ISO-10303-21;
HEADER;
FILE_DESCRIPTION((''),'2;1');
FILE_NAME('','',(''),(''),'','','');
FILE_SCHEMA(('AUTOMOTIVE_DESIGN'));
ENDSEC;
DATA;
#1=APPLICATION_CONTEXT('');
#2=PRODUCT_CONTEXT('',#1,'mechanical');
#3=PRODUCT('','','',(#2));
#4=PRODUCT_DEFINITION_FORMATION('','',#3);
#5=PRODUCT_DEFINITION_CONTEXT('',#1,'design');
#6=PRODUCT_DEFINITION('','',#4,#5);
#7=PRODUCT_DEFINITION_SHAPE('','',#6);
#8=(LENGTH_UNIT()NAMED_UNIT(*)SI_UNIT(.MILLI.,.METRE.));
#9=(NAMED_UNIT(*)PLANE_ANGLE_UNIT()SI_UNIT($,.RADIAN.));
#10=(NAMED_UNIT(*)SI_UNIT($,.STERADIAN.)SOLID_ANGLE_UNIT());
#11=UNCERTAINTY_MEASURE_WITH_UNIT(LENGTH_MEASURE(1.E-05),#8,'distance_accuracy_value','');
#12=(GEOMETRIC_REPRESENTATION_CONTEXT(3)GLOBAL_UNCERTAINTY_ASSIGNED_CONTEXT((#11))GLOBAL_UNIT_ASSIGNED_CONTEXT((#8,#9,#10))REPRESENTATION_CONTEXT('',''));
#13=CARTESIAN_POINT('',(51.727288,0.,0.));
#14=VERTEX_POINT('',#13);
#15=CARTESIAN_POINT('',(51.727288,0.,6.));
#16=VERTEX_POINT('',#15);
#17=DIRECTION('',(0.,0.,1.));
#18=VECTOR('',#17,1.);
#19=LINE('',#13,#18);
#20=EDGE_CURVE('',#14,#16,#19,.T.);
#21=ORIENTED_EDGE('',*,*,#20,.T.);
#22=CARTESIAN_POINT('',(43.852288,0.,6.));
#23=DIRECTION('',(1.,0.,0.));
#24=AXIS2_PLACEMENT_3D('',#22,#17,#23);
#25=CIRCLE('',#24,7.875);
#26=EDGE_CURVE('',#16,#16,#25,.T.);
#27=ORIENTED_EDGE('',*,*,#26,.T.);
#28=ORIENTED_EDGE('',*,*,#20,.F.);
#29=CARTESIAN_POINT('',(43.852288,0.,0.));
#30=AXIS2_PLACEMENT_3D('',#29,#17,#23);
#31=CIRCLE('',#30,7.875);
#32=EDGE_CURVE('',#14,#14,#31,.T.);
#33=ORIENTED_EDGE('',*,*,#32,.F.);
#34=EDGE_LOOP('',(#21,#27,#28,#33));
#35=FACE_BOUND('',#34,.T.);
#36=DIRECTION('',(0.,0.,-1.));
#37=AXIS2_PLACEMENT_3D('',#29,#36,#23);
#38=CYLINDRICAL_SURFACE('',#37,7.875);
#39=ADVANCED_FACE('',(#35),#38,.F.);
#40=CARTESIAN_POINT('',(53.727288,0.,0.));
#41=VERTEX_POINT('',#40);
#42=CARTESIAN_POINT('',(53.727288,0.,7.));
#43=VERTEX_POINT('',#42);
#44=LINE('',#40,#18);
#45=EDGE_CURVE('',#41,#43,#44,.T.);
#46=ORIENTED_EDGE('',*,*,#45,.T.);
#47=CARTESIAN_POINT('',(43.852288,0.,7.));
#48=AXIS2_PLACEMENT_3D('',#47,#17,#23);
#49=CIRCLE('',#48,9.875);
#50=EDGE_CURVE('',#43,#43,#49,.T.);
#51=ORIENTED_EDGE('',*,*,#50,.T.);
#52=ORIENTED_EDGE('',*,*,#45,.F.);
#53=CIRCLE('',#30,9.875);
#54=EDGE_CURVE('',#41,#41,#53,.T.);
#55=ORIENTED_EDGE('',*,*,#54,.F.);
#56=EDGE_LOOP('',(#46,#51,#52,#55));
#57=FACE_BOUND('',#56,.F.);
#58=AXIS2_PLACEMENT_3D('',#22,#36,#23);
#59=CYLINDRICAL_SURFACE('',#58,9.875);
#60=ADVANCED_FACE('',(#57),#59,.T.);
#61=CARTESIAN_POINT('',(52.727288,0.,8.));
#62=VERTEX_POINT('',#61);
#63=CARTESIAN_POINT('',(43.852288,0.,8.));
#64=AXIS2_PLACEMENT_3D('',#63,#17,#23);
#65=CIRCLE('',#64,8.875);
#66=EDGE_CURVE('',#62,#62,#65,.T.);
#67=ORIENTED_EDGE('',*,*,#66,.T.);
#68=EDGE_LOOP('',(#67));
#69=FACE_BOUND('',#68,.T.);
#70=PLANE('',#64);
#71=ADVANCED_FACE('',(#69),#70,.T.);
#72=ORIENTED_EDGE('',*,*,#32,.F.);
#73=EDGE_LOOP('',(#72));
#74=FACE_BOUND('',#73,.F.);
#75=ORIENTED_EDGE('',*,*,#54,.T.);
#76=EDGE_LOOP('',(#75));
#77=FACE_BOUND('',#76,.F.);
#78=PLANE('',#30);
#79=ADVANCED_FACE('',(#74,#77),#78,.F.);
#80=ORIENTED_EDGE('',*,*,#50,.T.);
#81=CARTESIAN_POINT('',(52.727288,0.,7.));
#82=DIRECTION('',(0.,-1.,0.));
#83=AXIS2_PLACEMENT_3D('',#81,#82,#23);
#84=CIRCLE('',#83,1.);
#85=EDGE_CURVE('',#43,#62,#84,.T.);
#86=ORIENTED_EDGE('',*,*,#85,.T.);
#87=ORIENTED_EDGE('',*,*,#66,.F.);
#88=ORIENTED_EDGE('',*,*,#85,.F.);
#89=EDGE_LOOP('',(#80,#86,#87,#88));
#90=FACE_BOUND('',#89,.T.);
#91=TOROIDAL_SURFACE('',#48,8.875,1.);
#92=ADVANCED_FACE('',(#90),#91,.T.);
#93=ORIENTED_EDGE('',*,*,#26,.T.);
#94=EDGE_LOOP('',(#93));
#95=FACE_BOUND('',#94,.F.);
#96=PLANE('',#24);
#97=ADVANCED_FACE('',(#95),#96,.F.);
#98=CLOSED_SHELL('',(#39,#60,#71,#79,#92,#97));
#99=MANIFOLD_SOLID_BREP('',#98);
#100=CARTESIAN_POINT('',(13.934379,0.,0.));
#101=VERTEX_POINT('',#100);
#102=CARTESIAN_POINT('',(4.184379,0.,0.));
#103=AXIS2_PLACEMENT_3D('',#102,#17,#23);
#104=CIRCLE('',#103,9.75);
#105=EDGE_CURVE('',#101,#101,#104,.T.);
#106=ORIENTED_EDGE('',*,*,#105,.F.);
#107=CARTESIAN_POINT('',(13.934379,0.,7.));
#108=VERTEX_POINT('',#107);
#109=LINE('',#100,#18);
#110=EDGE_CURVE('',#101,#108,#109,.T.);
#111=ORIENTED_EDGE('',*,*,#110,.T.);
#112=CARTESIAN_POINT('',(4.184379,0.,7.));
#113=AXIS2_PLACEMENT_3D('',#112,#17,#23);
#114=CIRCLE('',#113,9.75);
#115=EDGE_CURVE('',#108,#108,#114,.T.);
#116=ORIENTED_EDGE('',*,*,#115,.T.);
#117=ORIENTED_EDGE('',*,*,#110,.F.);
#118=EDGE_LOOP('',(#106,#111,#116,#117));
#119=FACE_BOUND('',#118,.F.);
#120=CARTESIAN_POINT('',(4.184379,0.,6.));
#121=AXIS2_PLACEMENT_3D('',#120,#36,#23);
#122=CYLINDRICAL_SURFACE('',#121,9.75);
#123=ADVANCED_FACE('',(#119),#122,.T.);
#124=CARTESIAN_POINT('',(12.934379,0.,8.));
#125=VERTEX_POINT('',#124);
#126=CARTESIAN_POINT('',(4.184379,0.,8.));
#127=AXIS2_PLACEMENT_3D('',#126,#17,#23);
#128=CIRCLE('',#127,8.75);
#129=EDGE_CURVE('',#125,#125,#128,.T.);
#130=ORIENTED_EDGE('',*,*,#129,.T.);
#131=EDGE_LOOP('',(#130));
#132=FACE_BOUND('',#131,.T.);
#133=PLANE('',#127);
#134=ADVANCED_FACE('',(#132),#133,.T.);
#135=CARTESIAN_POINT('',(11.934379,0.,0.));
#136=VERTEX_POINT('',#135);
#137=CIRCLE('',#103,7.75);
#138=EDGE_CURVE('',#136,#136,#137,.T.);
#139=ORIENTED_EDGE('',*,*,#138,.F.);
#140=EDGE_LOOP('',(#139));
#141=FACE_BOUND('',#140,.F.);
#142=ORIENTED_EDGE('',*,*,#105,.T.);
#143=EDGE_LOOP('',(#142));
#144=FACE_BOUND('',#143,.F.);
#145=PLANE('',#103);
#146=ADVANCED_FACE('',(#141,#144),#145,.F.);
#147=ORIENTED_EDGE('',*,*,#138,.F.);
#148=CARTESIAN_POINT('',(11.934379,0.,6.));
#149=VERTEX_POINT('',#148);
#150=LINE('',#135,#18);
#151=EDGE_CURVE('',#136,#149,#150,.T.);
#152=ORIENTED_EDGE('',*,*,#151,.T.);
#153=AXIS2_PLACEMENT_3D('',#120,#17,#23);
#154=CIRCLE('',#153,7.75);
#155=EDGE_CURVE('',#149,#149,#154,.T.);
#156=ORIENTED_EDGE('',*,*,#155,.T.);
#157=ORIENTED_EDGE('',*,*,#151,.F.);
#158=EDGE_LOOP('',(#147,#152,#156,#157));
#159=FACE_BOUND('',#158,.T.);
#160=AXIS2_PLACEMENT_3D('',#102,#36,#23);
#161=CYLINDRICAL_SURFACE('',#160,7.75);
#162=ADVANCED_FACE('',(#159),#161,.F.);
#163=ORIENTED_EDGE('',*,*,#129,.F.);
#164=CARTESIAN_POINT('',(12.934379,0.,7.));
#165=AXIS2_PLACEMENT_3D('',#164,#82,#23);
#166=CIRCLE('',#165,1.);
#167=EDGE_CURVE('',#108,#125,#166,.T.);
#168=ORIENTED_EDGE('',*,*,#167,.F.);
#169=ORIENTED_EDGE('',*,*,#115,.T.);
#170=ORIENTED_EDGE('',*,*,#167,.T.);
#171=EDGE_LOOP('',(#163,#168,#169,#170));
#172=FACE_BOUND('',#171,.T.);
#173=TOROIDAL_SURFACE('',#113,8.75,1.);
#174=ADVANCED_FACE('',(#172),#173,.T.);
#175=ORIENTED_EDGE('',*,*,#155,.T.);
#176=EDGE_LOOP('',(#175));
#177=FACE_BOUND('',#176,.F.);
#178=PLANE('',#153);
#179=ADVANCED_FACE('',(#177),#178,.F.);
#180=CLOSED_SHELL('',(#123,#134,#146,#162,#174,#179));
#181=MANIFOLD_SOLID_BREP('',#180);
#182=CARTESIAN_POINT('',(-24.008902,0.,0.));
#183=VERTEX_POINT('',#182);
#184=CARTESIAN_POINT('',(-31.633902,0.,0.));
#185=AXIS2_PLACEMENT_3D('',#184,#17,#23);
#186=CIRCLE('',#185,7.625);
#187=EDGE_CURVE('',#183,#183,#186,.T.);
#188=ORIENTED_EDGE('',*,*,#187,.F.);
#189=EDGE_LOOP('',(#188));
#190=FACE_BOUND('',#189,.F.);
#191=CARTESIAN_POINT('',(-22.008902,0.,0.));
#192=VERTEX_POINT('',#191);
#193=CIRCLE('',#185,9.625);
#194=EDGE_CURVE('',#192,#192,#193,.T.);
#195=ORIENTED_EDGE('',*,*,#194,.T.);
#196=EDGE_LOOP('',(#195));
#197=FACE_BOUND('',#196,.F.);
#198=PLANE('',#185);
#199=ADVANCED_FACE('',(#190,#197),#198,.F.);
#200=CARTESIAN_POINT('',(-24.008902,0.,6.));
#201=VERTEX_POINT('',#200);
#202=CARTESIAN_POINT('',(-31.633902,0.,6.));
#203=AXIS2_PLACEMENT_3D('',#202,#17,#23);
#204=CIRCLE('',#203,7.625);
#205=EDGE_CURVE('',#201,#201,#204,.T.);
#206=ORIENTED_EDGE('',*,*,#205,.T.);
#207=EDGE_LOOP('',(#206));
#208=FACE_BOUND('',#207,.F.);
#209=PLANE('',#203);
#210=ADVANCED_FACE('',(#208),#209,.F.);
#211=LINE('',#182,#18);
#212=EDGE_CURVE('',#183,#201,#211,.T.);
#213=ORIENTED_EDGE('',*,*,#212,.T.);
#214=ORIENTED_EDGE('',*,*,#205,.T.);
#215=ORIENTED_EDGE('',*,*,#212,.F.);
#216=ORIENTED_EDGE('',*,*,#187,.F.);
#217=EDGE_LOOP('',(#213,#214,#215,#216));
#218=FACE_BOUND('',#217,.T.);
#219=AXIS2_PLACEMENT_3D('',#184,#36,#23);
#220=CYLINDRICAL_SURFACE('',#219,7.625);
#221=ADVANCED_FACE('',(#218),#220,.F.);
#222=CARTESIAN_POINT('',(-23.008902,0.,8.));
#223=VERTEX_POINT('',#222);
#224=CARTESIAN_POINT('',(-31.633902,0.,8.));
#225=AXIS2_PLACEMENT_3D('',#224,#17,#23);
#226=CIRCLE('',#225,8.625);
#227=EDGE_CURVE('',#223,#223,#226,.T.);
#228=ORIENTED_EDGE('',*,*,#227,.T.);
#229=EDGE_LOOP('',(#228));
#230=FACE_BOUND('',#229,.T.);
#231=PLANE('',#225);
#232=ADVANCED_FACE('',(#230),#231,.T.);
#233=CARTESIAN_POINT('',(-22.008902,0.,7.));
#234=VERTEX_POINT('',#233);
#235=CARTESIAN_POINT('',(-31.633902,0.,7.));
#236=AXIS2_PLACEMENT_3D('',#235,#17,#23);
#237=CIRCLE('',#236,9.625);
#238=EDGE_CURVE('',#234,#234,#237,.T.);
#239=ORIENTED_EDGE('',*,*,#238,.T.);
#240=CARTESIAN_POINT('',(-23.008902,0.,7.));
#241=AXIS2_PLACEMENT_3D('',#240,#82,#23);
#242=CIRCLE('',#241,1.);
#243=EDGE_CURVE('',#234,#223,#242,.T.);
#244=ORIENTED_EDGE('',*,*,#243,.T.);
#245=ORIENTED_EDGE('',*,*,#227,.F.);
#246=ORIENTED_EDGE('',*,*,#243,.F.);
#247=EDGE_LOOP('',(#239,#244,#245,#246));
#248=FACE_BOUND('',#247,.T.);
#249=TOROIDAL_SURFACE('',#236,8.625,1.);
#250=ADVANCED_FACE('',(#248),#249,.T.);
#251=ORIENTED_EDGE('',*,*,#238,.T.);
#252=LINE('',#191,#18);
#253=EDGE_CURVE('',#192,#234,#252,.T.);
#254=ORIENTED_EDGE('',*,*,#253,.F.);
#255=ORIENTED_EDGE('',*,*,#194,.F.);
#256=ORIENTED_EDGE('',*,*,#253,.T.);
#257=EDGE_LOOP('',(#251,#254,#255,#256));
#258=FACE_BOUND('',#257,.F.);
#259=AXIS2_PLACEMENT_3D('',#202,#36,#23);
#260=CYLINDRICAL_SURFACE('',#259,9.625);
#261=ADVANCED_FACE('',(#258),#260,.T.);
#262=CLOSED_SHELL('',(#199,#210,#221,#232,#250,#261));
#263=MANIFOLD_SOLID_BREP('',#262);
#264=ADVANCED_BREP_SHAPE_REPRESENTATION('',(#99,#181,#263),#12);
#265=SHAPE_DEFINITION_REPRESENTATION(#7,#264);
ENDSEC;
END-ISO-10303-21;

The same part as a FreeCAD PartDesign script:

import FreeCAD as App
import Part
import Sketcher
Q = App.Units.Quantity


def edges_at(feature, points):
    """Names of the edges that pass closest to the given points."""
    edges = feature.Shape.Edges
    near = lambda p: min(range(len(edges)), key=lambda i: edges[i].distToShape(Part.Vertex(*p))[0])
    return sorted({f"Edge{near(p) + 1}" for p in points})

doc = App.newDocument("Part")
body = doc.addObject("PartDesign::Body", "Body")
body.AllowCompound = True

sketch1 = body.newObject("Sketcher::SketchObject", "Sketch")
sketch1.AttachmentSupport = (doc.getObject("XY_Plane"), [""])
sketch1.MapMode = "FlatFace"
sketch1.addGeometry([
    Part.Circle(App.Vector(-32, 0, 0), App.Vector(0, 0, 1), 10),
    Part.Circle(App.Vector(-32, 0, 0), App.Vector(0, 0, 1), 8),
    Part.Circle(App.Vector(4, 0, 0), App.Vector(0, 0, 1), 10),
    Part.Circle(App.Vector(4, 0, 0), App.Vector(0, 0, 1), 8),
    Part.Circle(App.Vector(44, 0, 0), App.Vector(0, 0, 1), 10),
    Part.Circle(App.Vector(44, 0, 0), App.Vector(0, 0, 1), 8),
], False)
sketch1.addConstraint([
    Sketcher.Constraint("Coincident", 1, 3, 0, 3),
    Sketcher.Constraint("Coincident", 3, 3, 2, 3),
    Sketcher.Constraint("Coincident", 5, 3, 4, 3),
    Sketcher.Constraint("PointOnObject", 0, 3, -1),
    Sketcher.Constraint("PointOnObject", 2, 3, -1),
    Sketcher.Constraint("PointOnObject", 4, 3, -1),
    Sketcher.Constraint("Diameter", 2, Q("19.5 mm")),
    Sketcher.Constraint("Diameter", 3, Q("15.5 mm")),
    Sketcher.Constraint("Diameter", 0, Q("19.25 mm")),
    Sketcher.Constraint("Diameter", 1, Q("15.25 mm")),
    Sketcher.Constraint("Diameter", 4, Q("19.75 mm")),
    Sketcher.Constraint("Diameter", 5, Q("15.75 mm")),
    Sketcher.Constraint("DistanceX", 0, 3, -1, 1, Q("31.633902 mm")),
    Sketcher.Constraint("DistanceX", -1, 1, 2, 3, Q("4.184379 mm")),
    Sketcher.Constraint("DistanceX", 2, 3, 4, 3, Q("39.667909 mm")),
])
pad1 = body.newObject("PartDesign::Pad", "Pad")
pad1.Profile = sketch1
pad1.Length = 6

sketch2 = body.newObject("Sketcher::SketchObject", "Sketch001")
sketch2.AttachmentSupport = (doc.getObject("XY_Plane"), [""])
sketch2.MapMode = "FlatFace"
sketch2.AttachmentOffset = App.Placement(App.Vector(0, 0, 6), App.Rotation())
sketch2.addGeometry([
    Part.Circle(App.Vector(-32, 0, 0), App.Vector(0, 0, 1), 10),
    Part.Circle(App.Vector(4, 0, 0), App.Vector(0, 0, 1), 10),
    Part.Circle(App.Vector(44, 0, 0), App.Vector(0, 0, 1), 10),
], False)
sketch2.addConstraint([
    Sketcher.Constraint("PointOnObject", 0, 3, -1),
    Sketcher.Constraint("PointOnObject", 1, 3, -1),
    Sketcher.Constraint("PointOnObject", 2, 3, -1),
    Sketcher.Constraint("Diameter", 1, Q("19.5 mm")),
    Sketcher.Constraint("Diameter", 0, Q("19.25 mm")),
    Sketcher.Constraint("Diameter", 2, Q("19.75 mm")),
    Sketcher.Constraint("DistanceX", 0, 3, -1, 1, Q("31.633902 mm")),
    Sketcher.Constraint("DistanceX", -1, 1, 1, 3, Q("4.184379 mm")),
    Sketcher.Constraint("DistanceX", 1, 3, 2, 3, Q("39.667909 mm")),
])
pad2 = body.newObject("PartDesign::Pad", "Pad001")
pad2.Profile = sketch2
pad2.Length = 2
doc.recompute()

fillet = body.newObject("PartDesign::Fillet", "Fillet")
fillet.Base = (pad2, edges_at(pad2, [(-41.259, 0, 8), (-5.566, 0, 8), (33.977, 0, 8)]))
fillet.Radius = 1

doc.recompute()
